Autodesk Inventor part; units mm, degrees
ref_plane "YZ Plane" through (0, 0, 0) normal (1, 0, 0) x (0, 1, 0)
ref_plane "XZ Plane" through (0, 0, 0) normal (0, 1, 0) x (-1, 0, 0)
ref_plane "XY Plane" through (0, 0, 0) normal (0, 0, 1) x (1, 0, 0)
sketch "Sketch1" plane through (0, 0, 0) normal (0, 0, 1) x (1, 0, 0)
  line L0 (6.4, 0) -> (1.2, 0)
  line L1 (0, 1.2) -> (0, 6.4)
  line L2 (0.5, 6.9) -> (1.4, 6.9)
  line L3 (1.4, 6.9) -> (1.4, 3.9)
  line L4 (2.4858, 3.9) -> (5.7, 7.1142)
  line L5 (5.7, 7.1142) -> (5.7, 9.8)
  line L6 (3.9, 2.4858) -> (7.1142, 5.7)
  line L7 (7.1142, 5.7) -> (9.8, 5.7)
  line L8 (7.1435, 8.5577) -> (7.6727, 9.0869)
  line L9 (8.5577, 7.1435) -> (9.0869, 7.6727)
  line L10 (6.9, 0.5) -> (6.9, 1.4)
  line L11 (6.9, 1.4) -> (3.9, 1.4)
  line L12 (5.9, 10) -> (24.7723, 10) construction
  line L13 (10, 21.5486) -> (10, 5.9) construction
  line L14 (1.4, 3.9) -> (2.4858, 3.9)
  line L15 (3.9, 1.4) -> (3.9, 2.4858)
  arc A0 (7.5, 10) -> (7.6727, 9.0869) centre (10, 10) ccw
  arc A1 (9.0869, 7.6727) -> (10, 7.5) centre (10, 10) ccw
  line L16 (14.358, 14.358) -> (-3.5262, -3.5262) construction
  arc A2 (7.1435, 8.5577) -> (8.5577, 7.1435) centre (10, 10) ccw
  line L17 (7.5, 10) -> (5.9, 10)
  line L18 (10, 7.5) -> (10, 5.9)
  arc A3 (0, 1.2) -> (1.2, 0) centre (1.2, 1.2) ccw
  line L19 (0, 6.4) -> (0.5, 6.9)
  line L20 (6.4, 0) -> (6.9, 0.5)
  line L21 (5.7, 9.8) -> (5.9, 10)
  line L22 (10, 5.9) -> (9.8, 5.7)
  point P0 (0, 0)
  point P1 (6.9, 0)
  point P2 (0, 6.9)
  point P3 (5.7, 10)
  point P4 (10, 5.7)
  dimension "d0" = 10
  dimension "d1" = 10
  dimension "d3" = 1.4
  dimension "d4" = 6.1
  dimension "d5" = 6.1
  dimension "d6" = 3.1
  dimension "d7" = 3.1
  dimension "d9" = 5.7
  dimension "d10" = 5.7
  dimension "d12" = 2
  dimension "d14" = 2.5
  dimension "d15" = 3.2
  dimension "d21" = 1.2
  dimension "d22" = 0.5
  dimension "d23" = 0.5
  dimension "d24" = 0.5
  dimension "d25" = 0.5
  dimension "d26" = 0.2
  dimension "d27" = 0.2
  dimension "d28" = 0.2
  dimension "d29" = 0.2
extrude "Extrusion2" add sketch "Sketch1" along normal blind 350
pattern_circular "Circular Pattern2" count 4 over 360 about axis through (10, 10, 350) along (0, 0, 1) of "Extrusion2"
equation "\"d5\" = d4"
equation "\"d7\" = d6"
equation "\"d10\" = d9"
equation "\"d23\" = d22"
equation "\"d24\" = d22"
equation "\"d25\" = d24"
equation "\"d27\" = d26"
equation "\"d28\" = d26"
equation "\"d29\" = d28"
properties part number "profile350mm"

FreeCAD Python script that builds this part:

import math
import FreeCAD as App
import Part
import Sketcher
Q = App.Units.Quantity

doc = App.newDocument("Part")
body = doc.addObject("PartDesign::Body", "Body")

sketch1 = doc.addObject("Sketcher::SketchObject", "Sketch")
body.addObject(sketch1)
sketch1.AttachmentSupport = (doc.XY_Plane, [""])
sketch1.MapMode = "FlatFace"
sketch1.addGeometry([
    Part.LineSegment(App.Vector(1.2, 0, 0), App.Vector(6.4, 0, 0)),
    Part.LineSegment(App.Vector(6.4, 0, 0), App.Vector(6.9, 0.5, 0)),
    Part.LineSegment(App.Vector(6.9, 0.5, 0), App.Vector(6.9, 1.4, 0)),
    Part.LineSegment(App.Vector(6.9, 1.4, 0), App.Vector(3.9, 1.4, 0)),
    Part.LineSegment(App.Vector(3.9, 1.4, 0), App.Vector(3.9, 2.49, 0)),
    Part.LineSegment(App.Vector(3.9, 2.49, 0), App.Vector(7.11, 5.7, 0)),
    Part.LineSegment(App.Vector(7.11, 5.7, 0), App.Vector(9.8, 5.7, 0)),
    Part.LineSegment(App.Vector(9.8, 5.7, 0), App.Vector(10, 5.9, 0)),
    Part.LineSegment(App.Vector(10, 5.9, 0), App.Vector(10, 7.5, 0)),
    Part.ArcOfCircle(Part.Circle(App.Vector(10, 10, 0), App.Vector(0, 0, 1), 2.5), math.radians(-111), math.radians(-90)),
    Part.LineSegment(App.Vector(9.09, 7.67, 0), App.Vector(8.56, 7.14, 0)),
    Part.ArcOfCircle(Part.Circle(App.Vector(10, 10, 0), App.Vector(0, 0, 1), 3.2), math.radians(-153), math.radians(-117)),
    Part.LineSegment(App.Vector(7.14, 8.56, 0), App.Vector(7.67, 9.09, 0)),
    Part.ArcOfCircle(Part.Circle(App.Vector(10, 10, 0), App.Vector(0, 0, 1), 2.5), math.radians(180), math.radians(201)),
    Part.LineSegment(App.Vector(7.5, 10, 0), App.Vector(5.9, 10, 0)),
    Part.LineSegment(App.Vector(5.9, 10, 0), App.Vector(5.7, 9.8, 0)),
    Part.LineSegment(App.Vector(5.7, 9.8, 0), App.Vector(5.7, 7.11, 0)),
    Part.LineSegment(App.Vector(5.7, 7.11, 0), App.Vector(2.49, 3.9, 0)),
    Part.LineSegment(App.Vector(2.49, 3.9, 0), App.Vector(1.4, 3.9, 0)),
    Part.LineSegment(App.Vector(1.4, 3.9, 0), App.Vector(1.4, 6.9, 0)),
    Part.LineSegment(App.Vector(1.4, 6.9, 0), App.Vector(0.5, 6.9, 0)),
    Part.LineSegment(App.Vector(0.5, 6.9, 0), App.Vector(0, 6.4, 0)),
    Part.LineSegment(App.Vector(0, 6.4, 0), App.Vector(0, 1.2, 0)),
    Part.ArcOfCircle(Part.Circle(App.Vector(1.2, 1.2, 0), App.Vector(0, 0, 1), 1.2), math.radians(180), math.radians(270)),
], False)
sketch1.addConstraint([
    Sketcher.Constraint("Coincident", 0, 2, 1, 1),
    Sketcher.Constraint("Coincident", 1, 2, 2, 1),
    Sketcher.Constraint("Coincident", 2, 2, 3, 1),
    Sketcher.Constraint("Coincident", 3, 2, 4, 1),
    Sketcher.Constraint("Coincident", 4, 2, 5, 1),
    Sketcher.Constraint("Coincident", 5, 2, 6, 1),
    Sketcher.Constraint("Coincident", 6, 2, 7, 1),
    Sketcher.Constraint("Coincident", 7, 2, 8, 1),
    Sketcher.Constraint("Coincident", 8, 2, 9, 2),
    Sketcher.Constraint("Coincident", 9, 1, 10, 1),
    Sketcher.Constraint("Coincident", 10, 2, 11, 2),
    Sketcher.Constraint("Coincident", 11, 1, 12, 1),
    Sketcher.Constraint("Coincident", 12, 2, 13, 2),
    Sketcher.Constraint("Coincident", 13, 1, 14, 1),
    Sketcher.Constraint("Coincident", 14, 2, 15, 1),
    Sketcher.Constraint("Coincident", 15, 2, 16, 1),
    Sketcher.Constraint("Coincident", 16, 2, 17, 1),
    Sketcher.Constraint("Coincident", 17, 2, 18, 1),
    Sketcher.Constraint("Coincident", 18, 2, 19, 1),
    Sketcher.Constraint("Coincident", 19, 2, 20, 1),
    Sketcher.Constraint("Coincident", 20, 2, 21, 1),
    Sketcher.Constraint("Coincident", 21, 2, 22, 1),
    Sketcher.Constraint("Tangent", 22, 2, 23, 1),
    Sketcher.Constraint("Tangent", 23, 2, 0, 1),
    Sketcher.Constraint("Horizontal", 0),
    Sketcher.Constraint("Vertical", 2),
    Sketcher.Constraint("Horizontal", 3),
    Sketcher.Constraint("Vertical", 4),
    Sketcher.Constraint("Horizontal", 6),
    Sketcher.Constraint("Vertical", 8),
    Sketcher.Constraint("Horizontal", 14),
    Sketcher.Constraint("Vertical", 16),
    Sketcher.Constraint("Horizontal", 18),
    Sketcher.Constraint("Vertical", 19),
    Sketcher.Constraint("Horizontal", 20),
    Sketcher.Constraint("Vertical", 22),
    Sketcher.Constraint("Coincident", 11, 3, 9, 3),
    Sketcher.Constraint("Coincident", 13, 3, 9, 3),
    Sketcher.Constraint("Equal", 9, 13),
    Sketcher.Constraint("PointOnObject", 0, 2, -1),
    Sketcher.Constraint("PointOnObject", 21, 2, -2),
    Sketcher.Constraint("Parallel", 1, 5),
    Sketcher.Constraint("Parallel", 5, 7),
    Sketcher.Constraint("Parallel", 7, 10),
    Sketcher.Constraint("Parallel", 10, 12),
    Sketcher.Constraint("Parallel", 12, 15),
    Sketcher.Constraint("Parallel", 15, 17),
    Sketcher.Constraint("Parallel", 17, 21),
    Sketcher.Constraint("Horizontal", 11, 3, 13, 1),
    Sketcher.Constraint("Vertical", 13, 3, 7, 2),
    Sketcher.Constraint("Equal", 20, 2),
    Sketcher.Constraint("Equal", 18, 4),
    Sketcher.Constraint("Equal", 14, 8),
    Sketcher.Constraint("Equal", 6, 16),
    Sketcher.Constraint("Equal", 3, 19),
    Sketcher.Constraint("Equal", 0, 22),
    Sketcher.Constraint("Equal", 10, 12),
    Sketcher.Constraint("Equal", 7, 15),
    Sketcher.Constraint("Equal", 5, 17),
    Sketcher.Constraint("Radius", 9, Q("2.5 mm")),
    Sketcher.Constraint("Radius", 11, Q("3.2 mm")),
    Sketcher.Constraint("Radius", 23, Q("1.2 mm")),
    Sketcher.Constraint("DistanceX", -1, 1, 9, 3, Q("10 mm")),
    Sketcher.Constraint("DistanceY", -1, 1, 9, 3, Q("10 mm")),
    Sketcher.Constraint("DistanceY", -1, 1, 1, 2, Q("0.5 mm")),
    Sketcher.Constraint("DistanceY", -1, 1, 2, 2, Q("1.4 mm")),
    Sketcher.Constraint("DistanceY", -1, 1, 5, 2, Q("5.7 mm")),
    Sketcher.Constraint("DistanceX", 23, 3, 1, 2, Q("5.7 mm")),
    Sketcher.Constraint("DistanceX", 3, 2, 0, 2, Q("2.5 mm")),
    Sketcher.Constraint("DistanceX", 6, 2, 9, 3, Q("0.2 mm")),
    Sketcher.Constraint("DistanceX", 6, 1, 6, 2, Q("2.6858 mm")),
    Sketcher.Constraint("DistanceX", -1, 1, 9, 1, Q("9.087 mm")),
])
pad1 = doc.addObject("PartDesign::Pad", "Pad")
body.addObject(pad1)
pad1.Profile = sketch1
pad1.Length = 350
doc.recompute()

datumline = doc.addObject("PartDesign::Line", "DatumLine")
body.addObject(datumline)
datumline.Placement = App.Placement(App.Vector(10, 10, 0), App.Rotation(App.Vector(0, 0, 1), App.Vector(0, 0, 1)))
polarpattern = doc.addObject("PartDesign::PolarPattern", "PolarPattern")
body.addObject(polarpattern)
polarpattern.Originals = [pad1]
polarpattern.Axis = (datumline, [""])
polarpattern.Angle = 360
polarpattern.Occurrences = 4
body.Tip = polarpattern

doc.recompute()
